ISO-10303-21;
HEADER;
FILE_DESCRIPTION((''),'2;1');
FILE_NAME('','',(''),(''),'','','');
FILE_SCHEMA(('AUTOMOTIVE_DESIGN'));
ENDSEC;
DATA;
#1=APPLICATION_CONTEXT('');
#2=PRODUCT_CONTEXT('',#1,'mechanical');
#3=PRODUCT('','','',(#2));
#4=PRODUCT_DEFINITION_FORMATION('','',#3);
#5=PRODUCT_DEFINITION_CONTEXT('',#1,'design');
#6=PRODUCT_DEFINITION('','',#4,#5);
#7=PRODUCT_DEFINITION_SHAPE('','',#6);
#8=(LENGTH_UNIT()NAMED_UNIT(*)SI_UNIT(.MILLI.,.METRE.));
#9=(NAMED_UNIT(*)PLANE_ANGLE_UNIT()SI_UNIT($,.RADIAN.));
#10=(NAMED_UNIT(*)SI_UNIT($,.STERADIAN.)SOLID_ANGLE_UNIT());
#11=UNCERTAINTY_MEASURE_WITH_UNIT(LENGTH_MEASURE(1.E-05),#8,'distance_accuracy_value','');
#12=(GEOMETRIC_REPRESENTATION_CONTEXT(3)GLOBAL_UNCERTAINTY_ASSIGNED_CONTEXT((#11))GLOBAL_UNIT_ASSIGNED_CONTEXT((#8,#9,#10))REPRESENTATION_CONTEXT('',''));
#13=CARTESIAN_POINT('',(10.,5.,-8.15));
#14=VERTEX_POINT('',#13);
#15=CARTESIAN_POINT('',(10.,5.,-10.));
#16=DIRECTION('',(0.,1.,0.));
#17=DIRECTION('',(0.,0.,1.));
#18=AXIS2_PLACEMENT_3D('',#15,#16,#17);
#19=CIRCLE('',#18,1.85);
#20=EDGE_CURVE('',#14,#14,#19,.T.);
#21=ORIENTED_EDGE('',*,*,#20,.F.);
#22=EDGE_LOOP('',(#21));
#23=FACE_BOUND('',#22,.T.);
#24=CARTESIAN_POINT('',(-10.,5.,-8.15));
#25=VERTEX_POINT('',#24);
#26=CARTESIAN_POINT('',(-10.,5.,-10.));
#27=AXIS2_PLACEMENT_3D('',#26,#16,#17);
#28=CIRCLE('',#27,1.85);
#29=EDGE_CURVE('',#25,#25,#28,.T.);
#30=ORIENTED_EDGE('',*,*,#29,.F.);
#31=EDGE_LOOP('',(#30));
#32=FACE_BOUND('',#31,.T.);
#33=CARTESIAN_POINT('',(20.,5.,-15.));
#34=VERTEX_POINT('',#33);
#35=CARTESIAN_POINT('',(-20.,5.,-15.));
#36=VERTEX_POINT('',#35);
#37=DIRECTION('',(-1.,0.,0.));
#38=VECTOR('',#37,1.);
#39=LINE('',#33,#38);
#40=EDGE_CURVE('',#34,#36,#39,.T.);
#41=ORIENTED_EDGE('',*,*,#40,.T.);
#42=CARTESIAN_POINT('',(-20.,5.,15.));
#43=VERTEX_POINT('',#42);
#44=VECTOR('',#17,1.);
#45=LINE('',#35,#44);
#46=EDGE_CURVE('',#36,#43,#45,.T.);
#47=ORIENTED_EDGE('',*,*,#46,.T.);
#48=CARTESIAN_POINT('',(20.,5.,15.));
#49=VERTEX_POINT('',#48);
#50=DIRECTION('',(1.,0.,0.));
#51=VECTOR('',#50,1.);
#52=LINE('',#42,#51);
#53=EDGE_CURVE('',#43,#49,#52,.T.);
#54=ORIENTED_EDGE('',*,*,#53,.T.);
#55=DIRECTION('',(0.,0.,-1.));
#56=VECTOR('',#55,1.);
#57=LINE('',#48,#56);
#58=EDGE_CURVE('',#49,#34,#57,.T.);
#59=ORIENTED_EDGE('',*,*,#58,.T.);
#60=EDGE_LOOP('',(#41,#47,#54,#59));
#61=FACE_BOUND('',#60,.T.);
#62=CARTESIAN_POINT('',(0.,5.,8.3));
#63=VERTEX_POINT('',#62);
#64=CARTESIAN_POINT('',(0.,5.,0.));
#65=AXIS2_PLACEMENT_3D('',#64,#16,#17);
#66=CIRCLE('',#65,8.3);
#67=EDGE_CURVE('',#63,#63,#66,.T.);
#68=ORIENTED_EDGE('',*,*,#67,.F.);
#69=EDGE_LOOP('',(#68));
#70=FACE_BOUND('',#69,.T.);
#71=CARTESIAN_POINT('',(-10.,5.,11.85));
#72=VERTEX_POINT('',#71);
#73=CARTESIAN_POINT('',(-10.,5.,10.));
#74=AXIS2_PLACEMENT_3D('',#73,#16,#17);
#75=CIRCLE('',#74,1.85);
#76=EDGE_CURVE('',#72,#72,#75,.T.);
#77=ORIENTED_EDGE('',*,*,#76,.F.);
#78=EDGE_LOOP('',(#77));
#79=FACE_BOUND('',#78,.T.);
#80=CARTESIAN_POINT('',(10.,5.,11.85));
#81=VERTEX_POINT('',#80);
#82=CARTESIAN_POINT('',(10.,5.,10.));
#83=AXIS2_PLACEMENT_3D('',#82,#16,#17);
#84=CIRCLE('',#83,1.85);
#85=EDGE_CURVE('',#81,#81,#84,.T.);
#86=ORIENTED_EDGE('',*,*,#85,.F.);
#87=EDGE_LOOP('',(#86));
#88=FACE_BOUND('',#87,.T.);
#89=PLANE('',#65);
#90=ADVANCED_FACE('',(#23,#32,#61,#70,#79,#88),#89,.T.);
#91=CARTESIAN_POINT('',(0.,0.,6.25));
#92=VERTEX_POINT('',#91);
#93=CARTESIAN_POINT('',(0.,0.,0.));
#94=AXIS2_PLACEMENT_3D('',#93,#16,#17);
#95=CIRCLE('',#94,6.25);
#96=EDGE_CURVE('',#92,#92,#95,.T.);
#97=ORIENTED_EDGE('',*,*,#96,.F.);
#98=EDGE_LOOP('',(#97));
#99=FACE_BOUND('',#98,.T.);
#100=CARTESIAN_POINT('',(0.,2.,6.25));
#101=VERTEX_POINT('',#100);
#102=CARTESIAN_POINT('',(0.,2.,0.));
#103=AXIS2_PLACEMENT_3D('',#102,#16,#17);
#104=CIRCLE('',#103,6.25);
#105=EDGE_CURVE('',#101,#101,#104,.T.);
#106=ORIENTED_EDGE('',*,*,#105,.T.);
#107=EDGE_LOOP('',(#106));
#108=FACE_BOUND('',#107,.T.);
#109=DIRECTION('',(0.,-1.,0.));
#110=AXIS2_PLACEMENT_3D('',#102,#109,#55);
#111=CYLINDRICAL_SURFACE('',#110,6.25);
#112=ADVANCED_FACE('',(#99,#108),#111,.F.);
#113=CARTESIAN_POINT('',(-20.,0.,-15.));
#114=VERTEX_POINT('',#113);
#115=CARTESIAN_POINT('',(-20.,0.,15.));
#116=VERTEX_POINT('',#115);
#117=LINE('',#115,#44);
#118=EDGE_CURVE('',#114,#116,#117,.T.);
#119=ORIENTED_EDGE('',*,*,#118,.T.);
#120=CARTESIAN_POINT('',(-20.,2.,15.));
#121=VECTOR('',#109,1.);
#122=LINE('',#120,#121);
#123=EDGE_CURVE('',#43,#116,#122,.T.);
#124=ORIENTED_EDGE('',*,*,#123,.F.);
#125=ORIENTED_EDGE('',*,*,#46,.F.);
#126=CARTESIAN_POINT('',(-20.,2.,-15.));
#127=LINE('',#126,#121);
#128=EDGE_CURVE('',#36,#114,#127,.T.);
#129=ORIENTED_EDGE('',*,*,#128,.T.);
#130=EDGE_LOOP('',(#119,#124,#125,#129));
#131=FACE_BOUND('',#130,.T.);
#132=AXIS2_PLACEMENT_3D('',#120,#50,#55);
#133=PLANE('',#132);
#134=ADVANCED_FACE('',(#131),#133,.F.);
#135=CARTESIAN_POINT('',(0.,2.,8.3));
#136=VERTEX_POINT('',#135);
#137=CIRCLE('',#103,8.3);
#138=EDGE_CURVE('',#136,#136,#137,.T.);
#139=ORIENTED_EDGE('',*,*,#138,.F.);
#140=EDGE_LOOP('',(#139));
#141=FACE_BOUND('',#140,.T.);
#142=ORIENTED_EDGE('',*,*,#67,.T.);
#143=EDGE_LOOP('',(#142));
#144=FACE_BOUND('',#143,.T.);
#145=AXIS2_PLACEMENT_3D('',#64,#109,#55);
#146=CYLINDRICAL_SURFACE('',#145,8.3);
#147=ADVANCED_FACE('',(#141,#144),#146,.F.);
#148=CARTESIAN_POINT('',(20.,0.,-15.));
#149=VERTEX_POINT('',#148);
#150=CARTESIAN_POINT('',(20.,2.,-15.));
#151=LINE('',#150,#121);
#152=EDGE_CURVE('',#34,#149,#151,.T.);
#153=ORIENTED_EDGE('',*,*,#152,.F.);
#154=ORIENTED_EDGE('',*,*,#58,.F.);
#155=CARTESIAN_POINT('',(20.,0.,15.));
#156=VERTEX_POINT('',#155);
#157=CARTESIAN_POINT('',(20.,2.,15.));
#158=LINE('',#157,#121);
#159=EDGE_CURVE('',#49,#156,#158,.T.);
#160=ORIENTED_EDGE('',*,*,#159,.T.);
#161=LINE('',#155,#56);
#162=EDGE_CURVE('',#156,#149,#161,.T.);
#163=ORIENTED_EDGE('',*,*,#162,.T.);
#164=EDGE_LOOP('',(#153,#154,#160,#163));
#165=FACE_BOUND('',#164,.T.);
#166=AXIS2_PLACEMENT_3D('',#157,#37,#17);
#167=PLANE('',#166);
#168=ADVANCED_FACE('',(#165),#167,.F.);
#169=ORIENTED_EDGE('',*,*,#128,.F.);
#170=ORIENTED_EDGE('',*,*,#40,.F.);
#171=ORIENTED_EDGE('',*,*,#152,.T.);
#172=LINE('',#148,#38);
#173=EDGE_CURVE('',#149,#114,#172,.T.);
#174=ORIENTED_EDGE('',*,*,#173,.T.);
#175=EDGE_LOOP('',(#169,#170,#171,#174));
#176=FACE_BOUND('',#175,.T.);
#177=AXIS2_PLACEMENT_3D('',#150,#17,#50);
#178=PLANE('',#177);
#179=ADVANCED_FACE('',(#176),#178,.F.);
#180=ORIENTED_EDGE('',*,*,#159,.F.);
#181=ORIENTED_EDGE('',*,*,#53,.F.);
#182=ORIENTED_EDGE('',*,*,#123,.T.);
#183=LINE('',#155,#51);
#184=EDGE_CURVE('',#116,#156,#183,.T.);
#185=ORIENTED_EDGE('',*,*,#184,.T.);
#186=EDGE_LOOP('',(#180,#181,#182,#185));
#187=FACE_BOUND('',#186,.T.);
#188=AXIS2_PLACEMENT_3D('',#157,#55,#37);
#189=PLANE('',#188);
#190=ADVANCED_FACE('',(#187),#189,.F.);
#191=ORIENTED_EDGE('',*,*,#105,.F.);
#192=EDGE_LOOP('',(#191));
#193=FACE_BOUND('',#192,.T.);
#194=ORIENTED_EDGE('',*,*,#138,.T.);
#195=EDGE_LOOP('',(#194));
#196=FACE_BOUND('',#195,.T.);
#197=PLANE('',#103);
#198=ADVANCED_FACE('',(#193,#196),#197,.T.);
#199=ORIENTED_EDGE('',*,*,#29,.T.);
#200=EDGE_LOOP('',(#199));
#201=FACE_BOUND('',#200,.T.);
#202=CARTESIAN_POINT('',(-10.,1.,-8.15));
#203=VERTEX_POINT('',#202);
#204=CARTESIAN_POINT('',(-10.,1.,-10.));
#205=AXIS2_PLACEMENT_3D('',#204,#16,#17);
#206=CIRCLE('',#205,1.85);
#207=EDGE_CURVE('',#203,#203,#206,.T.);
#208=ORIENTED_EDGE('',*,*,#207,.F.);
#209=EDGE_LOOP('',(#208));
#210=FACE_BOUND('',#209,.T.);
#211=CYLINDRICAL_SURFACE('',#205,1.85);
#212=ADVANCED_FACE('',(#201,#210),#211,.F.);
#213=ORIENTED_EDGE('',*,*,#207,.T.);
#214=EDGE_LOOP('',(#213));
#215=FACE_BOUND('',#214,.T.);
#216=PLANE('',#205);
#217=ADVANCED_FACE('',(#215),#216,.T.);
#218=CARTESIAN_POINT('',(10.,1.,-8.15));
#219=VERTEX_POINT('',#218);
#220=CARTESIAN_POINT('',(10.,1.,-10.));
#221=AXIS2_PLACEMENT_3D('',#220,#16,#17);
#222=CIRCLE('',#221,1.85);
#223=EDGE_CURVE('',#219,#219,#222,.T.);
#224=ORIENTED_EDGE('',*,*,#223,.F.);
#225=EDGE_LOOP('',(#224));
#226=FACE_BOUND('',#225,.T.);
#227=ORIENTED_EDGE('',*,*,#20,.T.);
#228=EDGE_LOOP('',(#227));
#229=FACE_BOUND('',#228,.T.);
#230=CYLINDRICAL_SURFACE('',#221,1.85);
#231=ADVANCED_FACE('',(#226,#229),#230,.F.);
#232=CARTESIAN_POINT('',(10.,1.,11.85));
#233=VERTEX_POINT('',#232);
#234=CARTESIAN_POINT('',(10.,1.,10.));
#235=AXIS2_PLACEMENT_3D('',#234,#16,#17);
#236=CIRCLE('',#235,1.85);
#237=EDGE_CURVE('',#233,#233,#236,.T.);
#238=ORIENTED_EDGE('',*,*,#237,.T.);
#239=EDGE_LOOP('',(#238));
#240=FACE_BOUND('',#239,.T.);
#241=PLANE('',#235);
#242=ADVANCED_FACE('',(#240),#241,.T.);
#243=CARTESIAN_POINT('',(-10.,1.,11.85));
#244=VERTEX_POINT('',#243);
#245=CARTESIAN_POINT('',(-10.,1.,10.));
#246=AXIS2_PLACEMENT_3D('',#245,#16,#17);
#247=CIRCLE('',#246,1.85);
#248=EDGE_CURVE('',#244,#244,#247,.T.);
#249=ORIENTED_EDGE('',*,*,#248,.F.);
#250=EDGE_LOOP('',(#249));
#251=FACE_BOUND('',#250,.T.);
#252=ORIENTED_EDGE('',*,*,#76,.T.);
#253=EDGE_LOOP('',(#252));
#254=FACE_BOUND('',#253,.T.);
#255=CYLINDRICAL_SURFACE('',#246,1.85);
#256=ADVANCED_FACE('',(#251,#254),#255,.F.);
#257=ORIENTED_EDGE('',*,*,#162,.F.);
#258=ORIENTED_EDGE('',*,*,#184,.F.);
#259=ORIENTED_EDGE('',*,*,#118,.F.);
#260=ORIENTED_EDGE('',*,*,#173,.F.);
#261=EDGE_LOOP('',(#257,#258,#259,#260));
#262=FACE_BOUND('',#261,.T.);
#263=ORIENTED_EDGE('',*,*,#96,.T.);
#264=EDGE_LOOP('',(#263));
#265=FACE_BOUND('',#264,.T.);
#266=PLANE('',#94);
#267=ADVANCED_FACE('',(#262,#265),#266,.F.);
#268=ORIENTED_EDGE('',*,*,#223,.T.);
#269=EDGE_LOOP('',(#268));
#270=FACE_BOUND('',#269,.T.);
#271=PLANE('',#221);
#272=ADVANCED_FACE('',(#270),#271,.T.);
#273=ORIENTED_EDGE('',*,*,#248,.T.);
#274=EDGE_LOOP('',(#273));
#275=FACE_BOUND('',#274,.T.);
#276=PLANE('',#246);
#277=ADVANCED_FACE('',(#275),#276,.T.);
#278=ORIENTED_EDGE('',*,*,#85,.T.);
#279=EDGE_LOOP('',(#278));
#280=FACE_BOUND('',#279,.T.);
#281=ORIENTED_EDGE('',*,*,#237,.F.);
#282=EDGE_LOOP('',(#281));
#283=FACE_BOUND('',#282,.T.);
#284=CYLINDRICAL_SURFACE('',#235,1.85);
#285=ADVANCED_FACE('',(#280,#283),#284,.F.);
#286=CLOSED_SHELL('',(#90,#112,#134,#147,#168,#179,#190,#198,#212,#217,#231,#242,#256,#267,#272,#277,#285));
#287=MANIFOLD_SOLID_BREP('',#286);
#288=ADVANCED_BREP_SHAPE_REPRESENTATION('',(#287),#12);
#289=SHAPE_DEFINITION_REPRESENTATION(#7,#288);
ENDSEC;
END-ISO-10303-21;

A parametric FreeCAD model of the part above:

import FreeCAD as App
import Part
import Sketcher

V = App.Vector
Q = App.Units.Quantity


def add_polygon(sketch, points):
    """Adds a closed chain of lines whose ends are joined by coincident constraints."""
    first, n = sketch.GeometryCount, len(points)
    for a, b in zip(points, points[1:] + points[:1]):
        sketch.addGeometry(Part.LineSegment(App.Vector(*a, 0), App.Vector(*b, 0)), False)
    for i in range(n):
        sketch.addConstraint(Sketcher.Constraint("Coincident", first + i, 2, first + (i + 1) % n, 1))

doc = App.newDocument("Part")
params = doc.addObject("Spreadsheet::Sheet", "Params")
for row, (alias, value) in enumerate([
    ("sketch1_diameter", "12.5 mm"),
    ("sketch1_width", "40 mm"),
    ("sketch1_height", "30 mm"),
    ("pad1_length", "2 mm"),
    ("sketch2_diameter", "16.6 mm"),
    ("sketch2_width", "40 mm"),
    ("sketch2_height", "30 mm"),
    ("pad2_length", "3 mm"),
    ("sketch3_diameter", "3.7 mm"),
    ("pocket1_length", "4 mm"),
], start=1):
    params.set(f"A{row}", alias)
    params.set(f"B{row}", "=" + value)
    params.setAlias(f"B{row}", alias)

body = doc.addObject("PartDesign::Body", "Body")

sketch1 = body.newObject("Sketcher::SketchObject", "Sketch")
sketch1.AttachmentSupport = (doc.getObject("XZ_Plane"), [""])
sketch1.MapMode = "FlatFace"
add_polygon(sketch1, [(-20, -15), (-20, 15), (20, 15), (20, -15)])
sketch1.addGeometry(Part.Circle(V(0, 0, 0), V(0, 0, 1), 6), False)
sketch1.addConstraint([
    Sketcher.Constraint("Vertical", 0),
    Sketcher.Constraint("Horizontal", 1),
    Sketcher.Constraint("Vertical", 2),
    Sketcher.Constraint("Horizontal", 3),
    Sketcher.Constraint("Coincident", 4, 3, -1, 1),
    Sketcher.Constraint("Symmetric", 0, 2, 2, 2, -1, 1),
    Sketcher.Constraint("Diameter", 4, Q("12.5 mm")),
    Sketcher.Constraint("DistanceX", 1, 1, 1, 2, Q("40 mm")),
    Sketcher.Constraint("DistanceY", 0, 1, 0, 2, Q("30 mm")),
])
sketch1.setExpression("Constraints[10]", "Params.sketch1_diameter")
sketch1.setExpression("Constraints[11]", "Params.sketch1_width")
sketch1.setExpression("Constraints[12]", "Params.sketch1_height")
pad1 = body.newObject("PartDesign::Pad", "Pad")
pad1.Profile = sketch1
pad1.setExpression("Length", "Params.pad1_length")
pad1.Reversed = True

sketch2 = body.newObject("Sketcher::SketchObject", "Sketch001")
sketch2.AttachmentSupport = (doc.getObject("XZ_Plane"), [""])
sketch2.MapMode = "FlatFace"
sketch2.AttachmentOffset = App.Placement(V(0, 0, -2), App.Rotation())
add_polygon(sketch2, [(-20, -15), (-20, 15), (20, 15), (20, -15)])
sketch2.addGeometry(Part.Circle(V(0, 0, 0), V(0, 0, 1), 8), False)
sketch2.addConstraint([
    Sketcher.Constraint("Vertical", 0),
    Sketcher.Constraint("Horizontal", 1),
    Sketcher.Constraint("Vertical", 2),
    Sketcher.Constraint("Horizontal", 3),
    Sketcher.Constraint("Coincident", 4, 3, -1, 1),
    Sketcher.Constraint("Symmetric", 0, 2, 2, 2, -1, 1),
    Sketcher.Constraint("Diameter", 4, Q("16.6 mm")),
    Sketcher.Constraint("DistanceX", 1, 1, 1, 2, Q("40 mm")),
    Sketcher.Constraint("DistanceY", 0, 1, 0, 2, Q("30 mm")),
])
sketch2.setExpression("Constraints[10]", "Params.sketch2_diameter")
sketch2.setExpression("Constraints[11]", "Params.sketch2_width")
sketch2.setExpression("Constraints[12]", "Params.sketch2_height")
pad2 = body.newObject("PartDesign::Pad", "Pad001")
pad2.Profile = sketch2
pad2.setExpression("Length", "Params.pad2_length")
pad2.Reversed = True

sketch3 = body.newObject("Sketcher::SketchObject", "Sketch002")
sketch3.AttachmentSupport = (doc.getObject("XZ_Plane"), [""])
sketch3.MapMode = "FlatFace"
sketch3.AttachmentOffset = App.Placement(V(0, 0, -5), App.Rotation())
sketch3.addGeometry([
    Part.Circle(V(-10, -10, 0), V(0, 0, 1), 1.9),
    Part.Circle(V(10, -10, 0), V(0, 0, 1), 1.9),
    Part.Circle(V(10, 10, 0), V(0, 0, 1), 1.9),
    Part.Circle(V(-10, 10, 0), V(0, 0, 1), 1.9),
], False)
sketch3.addConstraint([
    Sketcher.Constraint("Equal", 0, 1),
    Sketcher.Constraint("Equal", 1, 2),
    Sketcher.Constraint("Equal", 2, 3),
    Sketcher.Constraint("Symmetric", 0, 3, 2, 3, -1, 1),
    Sketcher.Constraint("Symmetric", 1, 3, 3, 3, -1, 1),
    Sketcher.Constraint("Symmetric", 0, 3, 1, 3, -2),
    Sketcher.Constraint("Diameter", 0, Q("3.7 mm")),
    Sketcher.Constraint("DistanceX", 0, 3, -1, 1, Q("10 mm")),
    Sketcher.Constraint("DistanceY", 0, 3, -1, 1, Q("10 mm")),
])
sketch3.setExpression("Constraints[6]", "Params.sketch3_diameter")
pocket1 = body.newObject("PartDesign::Pocket", "Pocket")
pocket1.Profile = sketch3
pocket1.setExpression("Length", "Params.pocket1_length")
pocket1.Reversed = True

doc.recompute()
